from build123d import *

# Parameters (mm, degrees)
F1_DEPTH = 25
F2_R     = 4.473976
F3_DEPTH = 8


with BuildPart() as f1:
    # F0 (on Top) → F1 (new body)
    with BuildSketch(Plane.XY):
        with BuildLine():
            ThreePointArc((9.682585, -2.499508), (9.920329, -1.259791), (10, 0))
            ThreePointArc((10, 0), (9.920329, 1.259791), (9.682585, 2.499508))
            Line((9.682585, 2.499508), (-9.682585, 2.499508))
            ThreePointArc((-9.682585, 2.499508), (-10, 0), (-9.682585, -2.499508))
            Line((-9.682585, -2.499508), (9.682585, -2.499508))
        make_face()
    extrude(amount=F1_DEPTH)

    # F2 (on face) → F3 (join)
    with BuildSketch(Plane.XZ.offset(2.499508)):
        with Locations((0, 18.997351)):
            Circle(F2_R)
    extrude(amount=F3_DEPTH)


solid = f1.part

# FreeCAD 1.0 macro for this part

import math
import FreeCAD as App
import Part
import Sketcher
from FreeCAD import Vector
Q = App.Units.Quantity

doc = App.newDocument("Part")
body = doc.addObject("PartDesign::Body", "Body")

sketch1 = body.newObject("Sketcher::SketchObject", "Sketch")
sketch1.AttachmentSupport = (doc.getObject("XY_Plane"), [""])
sketch1.MapMode = "FlatFace"
sketch1.addGeometry([
    Part.ArcOfCircle(Part.Circle(Vector(0.000029, -0.000002, 0), Vector(0, 0, 1), 9.999971), math.radians(-14.47463), math.radians(0.000012)),
    Part.ArcOfCircle(Part.Circle(Vector(0.000029, 0.000002, 0), Vector(0, 0, 1), 9.999971), math.radians(-0.000012), math.radians(14.47463)),
    Part.LineSegment(Vector(9.682585, 2.499508, 0), Vector(-9.682585, 2.499508, 0)),
    Part.ArcOfCircle(Part.Circle(Vector(-0.000012, 0, 0), Vector(0, 0, 1), 9.999988), math.radians(165.525382), math.radians(194.474618)),
    Part.LineSegment(Vector(-9.682585, -2.499508, 0), Vector(9.682585, -2.499508, 0)),
], False)
sketch1.addConstraint([
    Sketcher.Constraint("Tangent", 0, 2, 1, 1),
    Sketcher.Constraint("Coincident", 1, 2, 2, 1),
    Sketcher.Constraint("Coincident", 2, 2, 3, 1),
    Sketcher.Constraint("Coincident", 3, 2, 4, 1),
    Sketcher.Constraint("Coincident", 4, 2, 0, 1),
    Sketcher.Constraint("Horizontal", 2),
    Sketcher.Constraint("Horizontal", 4),
    Sketcher.Constraint("Equal", 0, 1),
    Sketcher.Constraint("Symmetric", 1, 2, 3, 2, -1, 1),
    Sketcher.Constraint("PointOnObject", 3, 3, -1),
    Sketcher.Constraint("PointOnObject", 0, 2, -1),
    Sketcher.Constraint("Vertical", 1, 2, 4, 2),
    Sketcher.Constraint("DistanceX", -1, 1, 0, 2, Q("10 mm")),
    Sketcher.Constraint("Radius", 0, Q("9.999971 mm")),
    Sketcher.Constraint("Radius", 3, Q("9.999988 mm")),
    Sketcher.Constraint("DistanceX", 2, 2, 2, 1, Q("19.36517 mm")),
])
pad1 = body.newObject("PartDesign::Pad", "Pad")
pad1.Profile = sketch1
pad1.Length = 25

sketch2 = body.newObject("Sketcher::SketchObject", "Sketch001")
sketch2.AttachmentSupport = (doc.getObject("XZ_Plane"), [""])
sketch2.MapMode = "FlatFace"
sketch2.AttachmentOffset = App.Placement(Vector(0, 0, 2.499508), App.Rotation())
sketch2.addGeometry(Part.Circle(Vector(0, 18.997351, 0), Vector(0, 0, 1), 4.473976), False)
sketch2.addConstraint([
    Sketcher.Constraint("PointOnObject", 0, 3, -2),
    Sketcher.Constraint("Diameter", 0, Q("8.947952 mm")),
    Sketcher.Constraint("DistanceY", -1, 1, 0, 3, Q("18.997351 mm")),
])
pad2 = body.newObject("PartDesign::Pad", "Pad001")
pad2.Profile = sketch2
pad2.Length = 8

doc.recompute()
